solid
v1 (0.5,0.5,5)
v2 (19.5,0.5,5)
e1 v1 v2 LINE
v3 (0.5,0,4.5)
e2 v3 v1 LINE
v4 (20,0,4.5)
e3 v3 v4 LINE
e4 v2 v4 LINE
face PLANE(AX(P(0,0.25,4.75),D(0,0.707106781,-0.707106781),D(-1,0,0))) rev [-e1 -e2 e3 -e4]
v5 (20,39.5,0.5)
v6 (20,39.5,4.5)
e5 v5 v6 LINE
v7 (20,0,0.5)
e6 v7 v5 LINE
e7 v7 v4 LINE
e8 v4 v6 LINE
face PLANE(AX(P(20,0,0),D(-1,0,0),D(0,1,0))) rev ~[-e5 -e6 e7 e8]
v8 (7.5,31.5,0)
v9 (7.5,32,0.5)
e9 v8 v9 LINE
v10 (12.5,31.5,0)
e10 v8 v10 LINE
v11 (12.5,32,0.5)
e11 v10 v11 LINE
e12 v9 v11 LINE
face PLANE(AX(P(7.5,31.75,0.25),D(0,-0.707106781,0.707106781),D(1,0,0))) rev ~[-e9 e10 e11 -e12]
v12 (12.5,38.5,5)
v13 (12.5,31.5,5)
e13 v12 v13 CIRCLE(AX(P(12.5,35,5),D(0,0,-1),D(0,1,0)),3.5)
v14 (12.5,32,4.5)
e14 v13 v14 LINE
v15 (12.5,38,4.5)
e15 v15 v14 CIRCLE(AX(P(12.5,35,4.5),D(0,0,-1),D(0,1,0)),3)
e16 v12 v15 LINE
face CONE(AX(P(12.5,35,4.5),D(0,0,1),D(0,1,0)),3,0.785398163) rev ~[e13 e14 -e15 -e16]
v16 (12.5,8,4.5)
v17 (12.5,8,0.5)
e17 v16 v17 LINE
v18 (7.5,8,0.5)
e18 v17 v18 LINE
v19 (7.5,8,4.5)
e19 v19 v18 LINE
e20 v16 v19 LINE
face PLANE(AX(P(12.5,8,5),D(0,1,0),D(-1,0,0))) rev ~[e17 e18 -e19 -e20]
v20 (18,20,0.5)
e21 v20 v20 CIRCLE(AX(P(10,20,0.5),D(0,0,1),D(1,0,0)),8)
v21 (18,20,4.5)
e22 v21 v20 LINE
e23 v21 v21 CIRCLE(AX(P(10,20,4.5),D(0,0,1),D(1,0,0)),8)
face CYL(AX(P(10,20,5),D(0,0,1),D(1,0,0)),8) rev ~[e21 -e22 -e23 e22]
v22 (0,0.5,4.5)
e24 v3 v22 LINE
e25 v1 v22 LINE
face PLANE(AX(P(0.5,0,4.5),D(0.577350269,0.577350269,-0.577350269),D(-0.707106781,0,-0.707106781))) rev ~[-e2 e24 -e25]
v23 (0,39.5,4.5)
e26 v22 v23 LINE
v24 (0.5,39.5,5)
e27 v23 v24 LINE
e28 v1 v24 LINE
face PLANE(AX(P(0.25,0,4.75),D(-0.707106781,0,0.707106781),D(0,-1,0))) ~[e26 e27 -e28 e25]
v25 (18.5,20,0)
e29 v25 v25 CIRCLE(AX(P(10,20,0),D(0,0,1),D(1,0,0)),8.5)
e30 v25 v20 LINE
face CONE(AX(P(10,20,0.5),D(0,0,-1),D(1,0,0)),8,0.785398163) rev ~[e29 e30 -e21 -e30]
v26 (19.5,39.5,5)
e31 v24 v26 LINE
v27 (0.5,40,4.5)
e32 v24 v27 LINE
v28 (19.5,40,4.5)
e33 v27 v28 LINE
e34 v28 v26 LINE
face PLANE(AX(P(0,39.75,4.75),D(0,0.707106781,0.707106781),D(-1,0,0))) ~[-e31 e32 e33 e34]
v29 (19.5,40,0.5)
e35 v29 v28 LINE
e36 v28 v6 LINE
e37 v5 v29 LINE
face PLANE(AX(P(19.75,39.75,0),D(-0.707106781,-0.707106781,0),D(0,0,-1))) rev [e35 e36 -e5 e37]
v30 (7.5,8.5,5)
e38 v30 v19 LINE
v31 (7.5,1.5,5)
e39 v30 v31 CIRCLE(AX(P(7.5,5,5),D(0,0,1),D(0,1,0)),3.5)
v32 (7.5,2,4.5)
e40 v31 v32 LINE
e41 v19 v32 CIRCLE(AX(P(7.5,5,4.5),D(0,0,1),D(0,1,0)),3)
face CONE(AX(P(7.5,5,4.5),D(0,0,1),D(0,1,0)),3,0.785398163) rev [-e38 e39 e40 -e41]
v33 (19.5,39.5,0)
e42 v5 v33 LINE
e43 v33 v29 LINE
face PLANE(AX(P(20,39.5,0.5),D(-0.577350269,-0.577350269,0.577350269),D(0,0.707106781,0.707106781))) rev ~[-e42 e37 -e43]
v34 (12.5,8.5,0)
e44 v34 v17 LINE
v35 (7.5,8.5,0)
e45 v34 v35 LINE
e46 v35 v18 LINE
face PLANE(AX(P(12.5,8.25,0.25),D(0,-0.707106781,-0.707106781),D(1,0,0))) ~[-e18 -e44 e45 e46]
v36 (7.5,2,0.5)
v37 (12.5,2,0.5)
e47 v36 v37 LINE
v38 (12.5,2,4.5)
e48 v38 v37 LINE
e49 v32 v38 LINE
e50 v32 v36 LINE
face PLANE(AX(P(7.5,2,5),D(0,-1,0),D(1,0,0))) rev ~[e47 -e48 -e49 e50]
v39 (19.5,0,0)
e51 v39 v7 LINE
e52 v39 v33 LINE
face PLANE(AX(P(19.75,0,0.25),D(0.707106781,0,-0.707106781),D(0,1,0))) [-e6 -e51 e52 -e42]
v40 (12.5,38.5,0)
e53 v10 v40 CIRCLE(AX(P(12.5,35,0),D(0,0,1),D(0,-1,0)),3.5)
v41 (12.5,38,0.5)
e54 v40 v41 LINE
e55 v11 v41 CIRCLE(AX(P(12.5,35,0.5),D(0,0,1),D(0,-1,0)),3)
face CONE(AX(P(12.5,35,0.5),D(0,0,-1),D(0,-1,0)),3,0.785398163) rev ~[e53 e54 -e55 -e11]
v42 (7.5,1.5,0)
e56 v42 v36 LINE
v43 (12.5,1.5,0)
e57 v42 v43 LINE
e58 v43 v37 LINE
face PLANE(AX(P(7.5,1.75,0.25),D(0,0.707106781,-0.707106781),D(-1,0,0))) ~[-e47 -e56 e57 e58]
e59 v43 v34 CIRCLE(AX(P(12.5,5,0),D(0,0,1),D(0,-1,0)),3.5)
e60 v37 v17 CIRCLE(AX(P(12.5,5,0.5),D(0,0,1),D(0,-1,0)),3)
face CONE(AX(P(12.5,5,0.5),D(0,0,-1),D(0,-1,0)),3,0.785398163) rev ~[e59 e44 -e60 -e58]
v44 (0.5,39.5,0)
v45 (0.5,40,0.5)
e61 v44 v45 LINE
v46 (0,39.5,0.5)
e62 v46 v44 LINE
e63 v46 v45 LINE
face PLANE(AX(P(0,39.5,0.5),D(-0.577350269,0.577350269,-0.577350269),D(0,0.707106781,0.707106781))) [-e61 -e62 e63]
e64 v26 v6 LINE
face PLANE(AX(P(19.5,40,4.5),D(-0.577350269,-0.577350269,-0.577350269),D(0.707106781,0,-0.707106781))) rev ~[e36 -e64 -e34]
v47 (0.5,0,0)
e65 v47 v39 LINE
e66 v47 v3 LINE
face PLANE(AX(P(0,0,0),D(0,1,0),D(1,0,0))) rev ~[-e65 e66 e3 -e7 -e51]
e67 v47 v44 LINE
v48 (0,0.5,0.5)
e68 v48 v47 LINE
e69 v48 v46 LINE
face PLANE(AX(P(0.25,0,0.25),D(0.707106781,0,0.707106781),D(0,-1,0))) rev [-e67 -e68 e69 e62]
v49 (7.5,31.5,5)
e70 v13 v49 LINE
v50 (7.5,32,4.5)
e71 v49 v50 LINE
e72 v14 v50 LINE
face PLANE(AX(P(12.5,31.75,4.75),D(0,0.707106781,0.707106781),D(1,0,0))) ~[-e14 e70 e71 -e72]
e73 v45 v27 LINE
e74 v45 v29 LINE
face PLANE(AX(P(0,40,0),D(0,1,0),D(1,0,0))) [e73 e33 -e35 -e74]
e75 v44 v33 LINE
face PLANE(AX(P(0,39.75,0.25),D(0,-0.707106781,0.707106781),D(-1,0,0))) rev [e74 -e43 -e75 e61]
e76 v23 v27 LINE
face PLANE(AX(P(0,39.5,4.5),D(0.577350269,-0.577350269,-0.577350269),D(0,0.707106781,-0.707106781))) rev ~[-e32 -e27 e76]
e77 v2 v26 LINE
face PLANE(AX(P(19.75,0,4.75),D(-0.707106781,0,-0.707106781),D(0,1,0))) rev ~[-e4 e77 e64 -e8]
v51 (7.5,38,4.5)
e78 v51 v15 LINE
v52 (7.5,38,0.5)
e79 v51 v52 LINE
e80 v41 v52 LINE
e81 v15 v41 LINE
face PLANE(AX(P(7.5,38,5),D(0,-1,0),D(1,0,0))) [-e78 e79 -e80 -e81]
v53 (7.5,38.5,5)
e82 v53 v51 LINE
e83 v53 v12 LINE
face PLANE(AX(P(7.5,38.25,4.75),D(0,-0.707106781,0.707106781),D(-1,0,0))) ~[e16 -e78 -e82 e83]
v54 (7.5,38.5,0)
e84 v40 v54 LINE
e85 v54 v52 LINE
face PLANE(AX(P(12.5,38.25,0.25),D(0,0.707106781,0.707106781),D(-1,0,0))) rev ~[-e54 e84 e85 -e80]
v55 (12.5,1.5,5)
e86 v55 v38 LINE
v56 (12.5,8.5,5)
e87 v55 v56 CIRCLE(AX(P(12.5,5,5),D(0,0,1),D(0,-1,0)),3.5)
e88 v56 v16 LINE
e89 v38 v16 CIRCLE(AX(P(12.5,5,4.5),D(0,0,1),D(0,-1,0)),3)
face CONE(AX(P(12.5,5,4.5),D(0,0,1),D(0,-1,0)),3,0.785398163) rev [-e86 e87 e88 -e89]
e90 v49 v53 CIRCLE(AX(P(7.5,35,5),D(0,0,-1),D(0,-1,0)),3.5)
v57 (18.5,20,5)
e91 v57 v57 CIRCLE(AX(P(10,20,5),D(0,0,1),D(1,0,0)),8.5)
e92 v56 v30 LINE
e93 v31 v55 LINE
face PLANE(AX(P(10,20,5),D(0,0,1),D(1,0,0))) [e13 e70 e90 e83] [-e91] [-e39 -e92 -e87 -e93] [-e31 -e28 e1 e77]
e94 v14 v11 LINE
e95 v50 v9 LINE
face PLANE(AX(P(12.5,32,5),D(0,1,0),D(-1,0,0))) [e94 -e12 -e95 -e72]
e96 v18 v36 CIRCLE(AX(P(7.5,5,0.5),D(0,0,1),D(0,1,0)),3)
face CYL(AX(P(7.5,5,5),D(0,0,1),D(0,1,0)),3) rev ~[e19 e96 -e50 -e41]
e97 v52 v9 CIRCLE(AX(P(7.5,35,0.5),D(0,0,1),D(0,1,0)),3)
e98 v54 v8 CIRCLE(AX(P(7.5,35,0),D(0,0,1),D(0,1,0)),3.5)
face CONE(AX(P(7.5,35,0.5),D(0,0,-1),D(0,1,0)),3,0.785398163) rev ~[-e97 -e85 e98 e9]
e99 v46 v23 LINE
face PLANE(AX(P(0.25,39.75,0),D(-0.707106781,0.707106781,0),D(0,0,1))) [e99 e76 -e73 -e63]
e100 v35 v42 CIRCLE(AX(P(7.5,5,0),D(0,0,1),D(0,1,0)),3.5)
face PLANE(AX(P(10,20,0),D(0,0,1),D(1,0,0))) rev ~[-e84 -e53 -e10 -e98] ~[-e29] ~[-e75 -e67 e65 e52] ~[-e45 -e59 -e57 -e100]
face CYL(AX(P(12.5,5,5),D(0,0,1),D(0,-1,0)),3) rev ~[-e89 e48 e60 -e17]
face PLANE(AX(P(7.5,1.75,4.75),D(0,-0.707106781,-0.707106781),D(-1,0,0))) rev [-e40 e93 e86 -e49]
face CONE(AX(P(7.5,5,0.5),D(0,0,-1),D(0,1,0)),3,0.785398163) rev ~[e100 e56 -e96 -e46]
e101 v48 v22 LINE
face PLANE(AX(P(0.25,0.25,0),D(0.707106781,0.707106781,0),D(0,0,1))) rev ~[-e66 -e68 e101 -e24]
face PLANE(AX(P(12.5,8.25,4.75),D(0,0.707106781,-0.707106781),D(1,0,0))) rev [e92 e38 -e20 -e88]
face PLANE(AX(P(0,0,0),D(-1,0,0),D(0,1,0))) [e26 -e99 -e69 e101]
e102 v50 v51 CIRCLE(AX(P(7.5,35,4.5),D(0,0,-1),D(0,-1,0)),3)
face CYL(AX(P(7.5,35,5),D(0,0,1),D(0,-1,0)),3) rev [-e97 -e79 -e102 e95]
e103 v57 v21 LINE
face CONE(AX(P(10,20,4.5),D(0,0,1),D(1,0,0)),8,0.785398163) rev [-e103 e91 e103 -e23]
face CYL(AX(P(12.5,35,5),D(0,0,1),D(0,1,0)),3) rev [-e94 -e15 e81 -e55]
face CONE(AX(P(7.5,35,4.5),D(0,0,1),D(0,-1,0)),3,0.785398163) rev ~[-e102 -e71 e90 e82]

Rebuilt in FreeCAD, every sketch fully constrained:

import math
import FreeCAD as App
import Part
import Sketcher


def edges_at(feature, points):
    """Names of the edges that pass closest to the given points."""
    edges = feature.Shape.Edges
    near = lambda p: min(range(len(edges)), key=lambda i: edges[i].distToShape(Part.Vertex(*p))[0])
    return sorted({f"Edge{near(p) + 1}" for p in points})


def add_polygon(sketch, points):
    """Adds a closed chain of lines whose ends are joined by coincident constraints."""
    first, n = sketch.GeometryCount, len(points)
    for a, b in zip(points, points[1:] + points[:1]):
        sketch.addGeometry(Part.LineSegment(App.Vector(*a, 0), App.Vector(*b, 0)), False)
    for i in range(n):
        sketch.addConstraint(Sketcher.Constraint("Coincident", first + i, 2, first + (i + 1) % n, 1))

doc = App.newDocument("Part")
body = doc.addObject("PartDesign::Body", "Body")

# Sketch on XY plane
sketch1 = body.newObject("Sketcher::SketchObject", "Sketch")
sketch1.AttachmentSupport = (doc.getObject("XY_Plane"), [""])
sketch1.MapMode = "FlatFace"
add_polygon(sketch1, [(0, 40), (0, 0), (20, 0), (20, 40)])  # lines 0-3
sketch1.addConstraint(Sketcher.Constraint("Vertical", 0))
sketch1.addConstraint(Sketcher.Constraint("Horizontal", 1))
sketch1.addConstraint(Sketcher.Constraint("Vertical", 2))
sketch1.addConstraint(Sketcher.Constraint("Horizontal", 3))
sketch1.addConstraint(Sketcher.Constraint("Coincident", 0, 2, -1, 1))
sketch1.addConstraint(Sketcher.Constraint("DistanceX", 1, 1, 1, 2, 20.0))
sketch1.addConstraint(Sketcher.Constraint("DistanceY", 0, 2, 0, 1, 40.0))
pad1 = body.newObject("PartDesign::Pad", "Pad")
pad1.Profile = sketch1
pad1.Length = 5

# Sketch on XY plane
sketch2 = body.newObject("Sketcher::SketchObject", "Sketch001")
sketch2.AttachmentSupport = (doc.getObject("XY_Plane"), [""])
sketch2.MapMode = "FlatFace"
sketch2.AttachmentOffset = App.Placement(App.Vector(0, 0, 5), App.Rotation())
sketch2.addGeometry(Part.Circle(App.Vector(10, 20, 0), App.Vector(0, 0, 1), 8), False)
sketch2.addConstraint(Sketcher.Constraint("Diameter", 0, 16.0))
sketch2.addConstraint(Sketcher.Constraint("DistanceX", -1, 1, 0, 3, 10.0))
sketch2.addConstraint(Sketcher.Constraint("DistanceY", -1, 1, 0, 3, 20.0))
pocket1 = body.newObject("PartDesign::Pocket", "Pocket")
pocket1.Profile = sketch2
pocket1.Length = 5

# Sketch on XY plane
sketch3 = body.newObject("Sketcher::SketchObject", "Sketch002")
sketch3.AttachmentSupport = (doc.getObject("XY_Plane"), [""])
sketch3.MapMode = "FlatFace"
sketch3.AttachmentOffset = App.Placement(App.Vector(0, 0, 5), App.Rotation())
sketch3.addGeometry(Part.LineSegment(App.Vector(12.5, 38, 0), App.Vector(7.5, 38, 0)), False)
sketch3.addGeometry(Part.ArcOfCircle(Part.Circle(App.Vector(7.5, 35, 0), App.Vector(0, 0, 1), 3), math.radians(90), math.radians(270)), False)
sketch3.addGeometry(Part.LineSegment(App.Vector(7.5, 32, 0), App.Vector(12.5, 32, 0)), False)
sketch3.addGeometry(Part.ArcOfCircle(Part.Circle(App.Vector(12.5, 35, 0), App.Vector(0, 0, 1), 3), math.radians(-90), math.radians(90)), False)
sketch3.addGeometry(Part.LineSegment(App.Vector(7.5, 2, 0), App.Vector(12.5, 2, 0)), False)
sketch3.addGeometry(Part.ArcOfCircle(Part.Circle(App.Vector(12.5, 5, 0), App.Vector(0, 0, 1), 3), math.radians(-90), math.radians(90)), False)
sketch3.addGeometry(Part.LineSegment(App.Vector(12.5, 8, 0), App.Vector(7.5, 8, 0)), False)
sketch3.addGeometry(Part.ArcOfCircle(Part.Circle(App.Vector(7.5, 5, 0), App.Vector(0, 0, 1), 3), math.radians(90), math.radians(270)), False)
sketch3.addConstraint(Sketcher.Constraint("Tangent", 0, 2, 1, 1))
sketch3.addConstraint(Sketcher.Constraint("Tangent", 1, 2, 2, 1))
sketch3.addConstraint(Sketcher.Constraint("Tangent", 2, 2, 3, 1))
sketch3.addConstraint(Sketcher.Constraint("Tangent", 3, 2, 0, 1))
sketch3.addConstraint(Sketcher.Constraint("Tangent", 4, 2, 5, 1))
sketch3.addConstraint(Sketcher.Constraint("Tangent", 5, 2, 6, 1))
sketch3.addConstraint(Sketcher.Constraint("Tangent", 6, 2, 7, 1))
sketch3.addConstraint(Sketcher.Constraint("Tangent", 7, 2, 4, 1))
sketch3.addConstraint(Sketcher.Constraint("Horizontal", 0))
sketch3.addConstraint(Sketcher.Constraint("Horizontal", 2))
sketch3.addConstraint(Sketcher.Constraint("Horizontal", 4))
sketch3.addConstraint(Sketcher.Constraint("Horizontal", 6))
sketch3.addConstraint(Sketcher.Constraint("Equal", 3, 5))
sketch3.addConstraint(Sketcher.Constraint("Vertical", 3, 3, 5, 3))
sketch3.addConstraint(Sketcher.Constraint("Vertical", 1, 3, 7, 3))
sketch3.addConstraint(Sketcher.Constraint("Radius", 1, 3.0))
sketch3.addConstraint(Sketcher.Constraint("DistanceX", 0, 2, 0, 1, 5.0))
sketch3.addConstraint(Sketcher.Constraint("DistanceY", -1, 1, 1, 3, 35.0))
sketch3.addConstraint(Sketcher.Constraint("DistanceY", -1, 1, 5, 3, 5.0))
sketch3.addConstraint(Sketcher.Constraint("DistanceX", -1, 1, 1, 3, 7.5))
pocket2 = body.newObject("PartDesign::Pocket", "Pocket001")
pocket2.Profile = sketch3
pocket2.Type = "ThroughAll"
doc.recompute()

chamfer = body.newObject("PartDesign::Chamfer", "Chamfer")
chamfer.Base = (pocket2, edges_at(pocket2, [
    (20, 20, 5),
    (10, 40, 5),
    (2, 20, 0),
    (2, 20, 5),
    (4.5, 35, 0),
    (10, 38, 0),
    (15.5, 35, 0),
    (10, 32, 0),
    (4.5, 35, 5),
    (10, 32, 5),
    (15.5, 35, 5),
    (10, 38, 5),
    (4.5, 5, 0),
    (10, 8, 0),
    (15.5, 5, 0),
    (10, 2, 0),
    (4.5, 5, 5),
    (10, 2, 5),
    (15.5, 5, 5),
    (10, 8, 5),
    (0, 20, 5),
    (10, 40, 0),
    (20, 20, 0),
    (0, 20, 0),
    (10, 0, 5),
    (0, 40, 2.5),
    (20, 40, 2.5),
    (0, 0, 2.5),
]))
chamfer.Size = 0.5

doc.recompute()
